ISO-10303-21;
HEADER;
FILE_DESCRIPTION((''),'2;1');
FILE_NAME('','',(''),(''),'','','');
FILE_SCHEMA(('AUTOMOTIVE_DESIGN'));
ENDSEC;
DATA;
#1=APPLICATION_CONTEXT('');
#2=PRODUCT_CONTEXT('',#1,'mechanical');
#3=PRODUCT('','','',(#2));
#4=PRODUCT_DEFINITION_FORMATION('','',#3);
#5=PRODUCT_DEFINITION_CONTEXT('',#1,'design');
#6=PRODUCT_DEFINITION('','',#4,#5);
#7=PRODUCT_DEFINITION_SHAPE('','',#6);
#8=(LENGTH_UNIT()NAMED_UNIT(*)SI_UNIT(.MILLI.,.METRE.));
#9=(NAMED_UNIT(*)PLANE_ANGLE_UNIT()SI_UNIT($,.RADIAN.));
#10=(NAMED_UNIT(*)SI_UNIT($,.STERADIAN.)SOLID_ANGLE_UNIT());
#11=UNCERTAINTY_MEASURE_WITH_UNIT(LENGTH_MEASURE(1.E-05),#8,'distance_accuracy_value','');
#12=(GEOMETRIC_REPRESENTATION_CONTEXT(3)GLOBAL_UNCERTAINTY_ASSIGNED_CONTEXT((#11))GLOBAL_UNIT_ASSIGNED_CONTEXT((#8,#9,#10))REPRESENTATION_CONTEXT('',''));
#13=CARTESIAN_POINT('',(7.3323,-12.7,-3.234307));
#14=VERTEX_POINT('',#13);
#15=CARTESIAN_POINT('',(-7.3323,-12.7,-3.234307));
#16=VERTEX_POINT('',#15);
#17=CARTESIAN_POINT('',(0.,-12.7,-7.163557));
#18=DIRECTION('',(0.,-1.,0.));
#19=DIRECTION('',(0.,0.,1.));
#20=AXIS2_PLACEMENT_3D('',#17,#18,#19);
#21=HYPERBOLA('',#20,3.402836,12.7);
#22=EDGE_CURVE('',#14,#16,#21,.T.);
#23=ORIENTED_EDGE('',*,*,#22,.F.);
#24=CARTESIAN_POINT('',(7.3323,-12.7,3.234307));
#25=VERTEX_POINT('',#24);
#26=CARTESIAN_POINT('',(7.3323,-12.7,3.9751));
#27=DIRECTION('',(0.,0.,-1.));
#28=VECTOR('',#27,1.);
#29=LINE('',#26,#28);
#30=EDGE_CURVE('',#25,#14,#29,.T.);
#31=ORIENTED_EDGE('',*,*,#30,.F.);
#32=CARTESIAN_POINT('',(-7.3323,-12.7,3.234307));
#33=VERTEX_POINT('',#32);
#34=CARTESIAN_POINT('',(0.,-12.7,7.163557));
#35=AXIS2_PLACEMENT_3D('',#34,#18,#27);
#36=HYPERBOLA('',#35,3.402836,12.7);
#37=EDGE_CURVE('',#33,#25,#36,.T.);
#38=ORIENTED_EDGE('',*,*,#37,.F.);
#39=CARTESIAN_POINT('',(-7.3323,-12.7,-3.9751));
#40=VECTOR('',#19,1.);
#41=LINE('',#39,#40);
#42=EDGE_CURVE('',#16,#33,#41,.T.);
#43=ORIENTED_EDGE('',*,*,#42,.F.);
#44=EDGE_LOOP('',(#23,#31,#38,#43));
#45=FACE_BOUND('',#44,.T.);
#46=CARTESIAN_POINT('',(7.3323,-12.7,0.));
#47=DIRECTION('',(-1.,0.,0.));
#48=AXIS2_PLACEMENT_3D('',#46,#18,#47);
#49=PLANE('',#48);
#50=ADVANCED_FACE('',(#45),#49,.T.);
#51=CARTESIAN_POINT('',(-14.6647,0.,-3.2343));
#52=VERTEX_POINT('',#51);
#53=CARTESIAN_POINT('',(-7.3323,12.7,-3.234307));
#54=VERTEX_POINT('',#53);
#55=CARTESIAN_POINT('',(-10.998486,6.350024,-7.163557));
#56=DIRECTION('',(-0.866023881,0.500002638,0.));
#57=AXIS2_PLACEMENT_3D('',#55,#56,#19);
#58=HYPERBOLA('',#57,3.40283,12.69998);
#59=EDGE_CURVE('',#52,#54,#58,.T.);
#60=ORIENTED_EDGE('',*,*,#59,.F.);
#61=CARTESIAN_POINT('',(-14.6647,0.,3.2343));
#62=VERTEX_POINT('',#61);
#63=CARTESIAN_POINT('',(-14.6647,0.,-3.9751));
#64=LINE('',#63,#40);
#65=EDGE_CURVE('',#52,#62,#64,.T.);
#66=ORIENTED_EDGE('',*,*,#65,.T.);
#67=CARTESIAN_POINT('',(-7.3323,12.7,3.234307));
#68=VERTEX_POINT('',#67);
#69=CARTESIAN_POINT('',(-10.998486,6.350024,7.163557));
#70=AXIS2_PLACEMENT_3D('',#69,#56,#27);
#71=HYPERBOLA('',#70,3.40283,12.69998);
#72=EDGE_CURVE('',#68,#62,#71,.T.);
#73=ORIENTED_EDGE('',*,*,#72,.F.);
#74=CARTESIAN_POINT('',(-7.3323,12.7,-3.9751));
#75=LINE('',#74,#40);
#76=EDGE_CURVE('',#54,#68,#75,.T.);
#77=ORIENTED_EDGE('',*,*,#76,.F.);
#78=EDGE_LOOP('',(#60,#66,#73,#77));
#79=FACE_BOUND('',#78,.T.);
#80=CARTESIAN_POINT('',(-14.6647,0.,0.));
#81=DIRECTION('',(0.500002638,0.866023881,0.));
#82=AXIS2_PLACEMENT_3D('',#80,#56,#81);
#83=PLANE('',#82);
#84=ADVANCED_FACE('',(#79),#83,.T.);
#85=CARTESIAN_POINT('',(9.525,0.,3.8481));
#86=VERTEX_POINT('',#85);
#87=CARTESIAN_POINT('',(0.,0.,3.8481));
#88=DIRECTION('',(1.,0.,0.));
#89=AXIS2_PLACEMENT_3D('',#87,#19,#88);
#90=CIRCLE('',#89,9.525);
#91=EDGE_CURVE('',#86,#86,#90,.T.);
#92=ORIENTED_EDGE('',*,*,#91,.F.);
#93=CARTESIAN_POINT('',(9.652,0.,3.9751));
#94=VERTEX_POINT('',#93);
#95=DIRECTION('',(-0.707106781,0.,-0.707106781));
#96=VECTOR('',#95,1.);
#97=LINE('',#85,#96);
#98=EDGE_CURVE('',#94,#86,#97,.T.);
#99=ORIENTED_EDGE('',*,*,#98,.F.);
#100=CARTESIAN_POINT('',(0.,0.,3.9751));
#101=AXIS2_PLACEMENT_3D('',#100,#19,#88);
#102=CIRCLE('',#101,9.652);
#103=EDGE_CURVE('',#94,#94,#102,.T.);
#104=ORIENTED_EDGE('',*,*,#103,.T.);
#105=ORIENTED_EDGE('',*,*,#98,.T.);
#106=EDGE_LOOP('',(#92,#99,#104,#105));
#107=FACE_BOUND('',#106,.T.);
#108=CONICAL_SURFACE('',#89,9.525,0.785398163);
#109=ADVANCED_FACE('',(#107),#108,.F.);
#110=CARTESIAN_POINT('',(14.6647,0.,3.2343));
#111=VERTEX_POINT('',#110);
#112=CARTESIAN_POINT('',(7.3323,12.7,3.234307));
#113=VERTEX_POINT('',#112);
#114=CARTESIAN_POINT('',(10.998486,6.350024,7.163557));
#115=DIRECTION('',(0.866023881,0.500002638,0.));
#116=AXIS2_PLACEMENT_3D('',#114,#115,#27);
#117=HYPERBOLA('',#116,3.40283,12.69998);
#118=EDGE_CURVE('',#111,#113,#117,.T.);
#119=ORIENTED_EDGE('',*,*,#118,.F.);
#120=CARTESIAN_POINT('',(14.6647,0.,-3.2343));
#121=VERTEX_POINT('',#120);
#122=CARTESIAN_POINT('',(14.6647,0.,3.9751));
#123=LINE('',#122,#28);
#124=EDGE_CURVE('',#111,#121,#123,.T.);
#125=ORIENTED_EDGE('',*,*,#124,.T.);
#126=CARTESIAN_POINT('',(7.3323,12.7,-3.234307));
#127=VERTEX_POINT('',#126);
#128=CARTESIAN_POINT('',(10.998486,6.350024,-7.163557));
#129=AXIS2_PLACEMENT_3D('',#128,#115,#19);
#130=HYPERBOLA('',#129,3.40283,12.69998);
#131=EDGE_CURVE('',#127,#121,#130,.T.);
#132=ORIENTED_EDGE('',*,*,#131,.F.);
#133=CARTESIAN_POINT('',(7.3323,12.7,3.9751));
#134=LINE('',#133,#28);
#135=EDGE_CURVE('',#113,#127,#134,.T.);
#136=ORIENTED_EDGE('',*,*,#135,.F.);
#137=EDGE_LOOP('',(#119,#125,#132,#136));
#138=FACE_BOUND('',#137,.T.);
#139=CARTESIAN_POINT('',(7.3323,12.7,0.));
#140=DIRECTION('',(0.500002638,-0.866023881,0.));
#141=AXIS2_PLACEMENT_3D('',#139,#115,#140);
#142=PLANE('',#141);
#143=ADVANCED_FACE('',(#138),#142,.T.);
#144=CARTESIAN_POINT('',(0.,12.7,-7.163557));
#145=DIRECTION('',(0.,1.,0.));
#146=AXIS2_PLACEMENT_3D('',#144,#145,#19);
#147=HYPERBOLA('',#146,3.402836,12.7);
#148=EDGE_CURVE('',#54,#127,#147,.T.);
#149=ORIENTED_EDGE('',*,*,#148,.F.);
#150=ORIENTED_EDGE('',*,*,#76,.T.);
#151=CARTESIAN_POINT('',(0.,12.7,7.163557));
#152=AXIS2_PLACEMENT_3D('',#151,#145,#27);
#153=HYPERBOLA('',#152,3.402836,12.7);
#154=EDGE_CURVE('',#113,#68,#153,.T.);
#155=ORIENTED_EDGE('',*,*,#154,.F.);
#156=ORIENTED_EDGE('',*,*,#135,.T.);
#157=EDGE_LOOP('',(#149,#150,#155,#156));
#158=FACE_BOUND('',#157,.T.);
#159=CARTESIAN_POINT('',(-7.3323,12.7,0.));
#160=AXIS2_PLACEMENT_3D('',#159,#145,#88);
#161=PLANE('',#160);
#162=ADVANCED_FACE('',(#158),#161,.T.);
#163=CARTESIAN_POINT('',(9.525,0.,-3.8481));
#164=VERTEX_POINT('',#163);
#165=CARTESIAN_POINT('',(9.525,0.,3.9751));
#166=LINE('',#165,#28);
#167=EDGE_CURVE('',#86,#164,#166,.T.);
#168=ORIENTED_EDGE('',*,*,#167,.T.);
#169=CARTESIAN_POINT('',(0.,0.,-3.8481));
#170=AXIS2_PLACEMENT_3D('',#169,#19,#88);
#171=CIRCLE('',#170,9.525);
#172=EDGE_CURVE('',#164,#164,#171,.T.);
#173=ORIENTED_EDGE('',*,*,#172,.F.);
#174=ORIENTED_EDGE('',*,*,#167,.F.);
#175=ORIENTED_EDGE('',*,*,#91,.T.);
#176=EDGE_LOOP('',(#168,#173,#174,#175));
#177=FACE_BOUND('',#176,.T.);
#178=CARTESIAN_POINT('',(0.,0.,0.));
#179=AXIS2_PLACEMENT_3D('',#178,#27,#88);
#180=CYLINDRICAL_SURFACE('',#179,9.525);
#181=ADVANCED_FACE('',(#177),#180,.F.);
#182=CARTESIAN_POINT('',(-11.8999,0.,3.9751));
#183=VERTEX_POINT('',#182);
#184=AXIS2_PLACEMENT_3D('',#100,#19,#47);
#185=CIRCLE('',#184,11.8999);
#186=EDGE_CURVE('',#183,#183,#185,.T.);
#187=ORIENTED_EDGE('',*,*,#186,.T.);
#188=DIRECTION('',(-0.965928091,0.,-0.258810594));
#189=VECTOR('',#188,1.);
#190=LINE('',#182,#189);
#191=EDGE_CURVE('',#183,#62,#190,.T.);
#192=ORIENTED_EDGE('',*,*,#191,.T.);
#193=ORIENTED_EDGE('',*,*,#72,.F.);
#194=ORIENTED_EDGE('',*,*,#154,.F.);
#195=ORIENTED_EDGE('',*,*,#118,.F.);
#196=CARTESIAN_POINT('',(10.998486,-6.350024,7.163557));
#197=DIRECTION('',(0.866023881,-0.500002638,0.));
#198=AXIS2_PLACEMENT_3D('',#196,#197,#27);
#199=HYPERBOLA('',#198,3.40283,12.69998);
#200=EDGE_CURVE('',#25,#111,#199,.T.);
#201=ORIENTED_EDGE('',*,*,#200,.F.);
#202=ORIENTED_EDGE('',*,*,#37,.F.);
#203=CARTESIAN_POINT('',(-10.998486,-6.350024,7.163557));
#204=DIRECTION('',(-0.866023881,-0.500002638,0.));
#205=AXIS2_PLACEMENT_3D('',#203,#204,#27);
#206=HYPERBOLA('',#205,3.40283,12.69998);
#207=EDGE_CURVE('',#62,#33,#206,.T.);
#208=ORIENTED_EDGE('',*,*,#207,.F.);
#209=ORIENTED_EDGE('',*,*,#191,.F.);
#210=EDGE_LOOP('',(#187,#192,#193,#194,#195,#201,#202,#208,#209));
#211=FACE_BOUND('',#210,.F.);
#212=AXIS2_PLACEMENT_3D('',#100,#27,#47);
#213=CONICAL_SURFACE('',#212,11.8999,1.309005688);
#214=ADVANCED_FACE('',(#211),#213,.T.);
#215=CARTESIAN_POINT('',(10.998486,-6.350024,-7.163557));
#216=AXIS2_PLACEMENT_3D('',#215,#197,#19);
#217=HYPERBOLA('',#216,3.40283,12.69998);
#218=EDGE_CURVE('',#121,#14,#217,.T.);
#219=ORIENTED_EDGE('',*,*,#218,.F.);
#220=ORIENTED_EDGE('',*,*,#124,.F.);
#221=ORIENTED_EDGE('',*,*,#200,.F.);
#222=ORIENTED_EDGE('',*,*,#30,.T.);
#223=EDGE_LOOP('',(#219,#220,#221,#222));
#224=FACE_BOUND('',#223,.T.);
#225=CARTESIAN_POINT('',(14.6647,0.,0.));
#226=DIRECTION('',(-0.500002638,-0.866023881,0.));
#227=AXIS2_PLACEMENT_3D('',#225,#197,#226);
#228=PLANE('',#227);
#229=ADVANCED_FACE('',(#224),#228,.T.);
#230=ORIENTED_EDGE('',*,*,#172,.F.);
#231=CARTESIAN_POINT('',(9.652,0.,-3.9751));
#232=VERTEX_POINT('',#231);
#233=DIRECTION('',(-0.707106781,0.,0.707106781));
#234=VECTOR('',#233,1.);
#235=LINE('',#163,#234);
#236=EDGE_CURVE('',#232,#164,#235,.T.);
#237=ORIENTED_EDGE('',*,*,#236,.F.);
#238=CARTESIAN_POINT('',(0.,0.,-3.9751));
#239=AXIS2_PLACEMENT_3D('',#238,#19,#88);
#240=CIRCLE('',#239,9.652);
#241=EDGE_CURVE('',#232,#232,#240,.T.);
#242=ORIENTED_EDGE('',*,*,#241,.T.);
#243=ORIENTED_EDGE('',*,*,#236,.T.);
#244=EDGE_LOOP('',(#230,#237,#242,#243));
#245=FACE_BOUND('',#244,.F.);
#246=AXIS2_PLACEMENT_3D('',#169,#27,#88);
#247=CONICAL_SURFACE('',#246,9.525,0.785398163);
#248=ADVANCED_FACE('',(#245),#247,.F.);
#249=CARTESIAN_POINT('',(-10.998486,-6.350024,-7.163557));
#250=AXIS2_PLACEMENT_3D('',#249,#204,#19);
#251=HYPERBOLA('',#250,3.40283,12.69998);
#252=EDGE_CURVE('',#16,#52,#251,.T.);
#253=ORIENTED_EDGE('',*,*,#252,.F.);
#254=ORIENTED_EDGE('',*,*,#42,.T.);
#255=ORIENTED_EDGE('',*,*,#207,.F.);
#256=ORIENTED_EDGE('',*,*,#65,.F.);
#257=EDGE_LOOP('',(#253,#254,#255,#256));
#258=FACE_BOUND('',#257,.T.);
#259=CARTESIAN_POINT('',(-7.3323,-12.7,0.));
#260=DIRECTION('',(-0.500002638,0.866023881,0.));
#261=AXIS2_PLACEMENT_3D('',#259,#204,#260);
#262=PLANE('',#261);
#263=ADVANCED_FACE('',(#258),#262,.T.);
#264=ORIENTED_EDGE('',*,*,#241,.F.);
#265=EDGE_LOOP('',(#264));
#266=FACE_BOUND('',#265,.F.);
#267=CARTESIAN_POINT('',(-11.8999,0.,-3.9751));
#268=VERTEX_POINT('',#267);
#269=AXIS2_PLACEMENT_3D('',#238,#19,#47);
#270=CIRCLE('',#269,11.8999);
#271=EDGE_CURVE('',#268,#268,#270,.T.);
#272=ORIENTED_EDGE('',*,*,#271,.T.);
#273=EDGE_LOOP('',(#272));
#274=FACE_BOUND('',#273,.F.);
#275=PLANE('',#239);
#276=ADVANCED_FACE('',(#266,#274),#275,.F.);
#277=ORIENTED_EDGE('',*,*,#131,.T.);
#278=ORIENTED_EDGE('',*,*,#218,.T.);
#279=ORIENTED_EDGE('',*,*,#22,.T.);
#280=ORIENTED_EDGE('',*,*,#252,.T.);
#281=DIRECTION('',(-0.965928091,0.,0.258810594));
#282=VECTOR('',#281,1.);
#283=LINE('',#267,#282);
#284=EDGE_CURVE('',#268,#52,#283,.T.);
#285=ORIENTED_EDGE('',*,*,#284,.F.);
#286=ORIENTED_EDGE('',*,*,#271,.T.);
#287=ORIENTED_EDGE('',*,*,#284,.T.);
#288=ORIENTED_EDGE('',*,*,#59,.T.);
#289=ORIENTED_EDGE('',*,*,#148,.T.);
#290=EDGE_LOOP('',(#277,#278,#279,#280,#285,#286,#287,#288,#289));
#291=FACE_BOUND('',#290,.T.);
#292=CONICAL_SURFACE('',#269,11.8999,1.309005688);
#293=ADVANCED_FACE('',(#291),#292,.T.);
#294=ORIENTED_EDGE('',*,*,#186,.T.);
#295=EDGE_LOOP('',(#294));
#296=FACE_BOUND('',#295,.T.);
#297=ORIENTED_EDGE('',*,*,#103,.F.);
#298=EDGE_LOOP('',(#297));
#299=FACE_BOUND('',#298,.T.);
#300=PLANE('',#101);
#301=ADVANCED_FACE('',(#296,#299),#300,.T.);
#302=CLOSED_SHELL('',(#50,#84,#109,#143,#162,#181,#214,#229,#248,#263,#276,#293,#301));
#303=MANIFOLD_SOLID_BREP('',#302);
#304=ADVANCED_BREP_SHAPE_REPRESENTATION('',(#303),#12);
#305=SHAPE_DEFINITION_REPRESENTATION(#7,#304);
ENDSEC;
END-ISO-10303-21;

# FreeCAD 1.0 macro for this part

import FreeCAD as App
import Part
import Sketcher
from FreeCAD import Vector
Q = App.Units.Quantity


def edges_at(feature, points):
    """Names of the edges that pass closest to the given points."""
    edges = feature.Shape.Edges
    near = lambda p: min(range(len(edges)), key=lambda i: edges[i].distToShape(Part.Vertex(*p))[0])
    return sorted({f"Edge{near(p) + 1}" for p in points})


def add_polygon(sketch, points):
    """Adds a closed chain of lines whose ends are joined by coincident constraints."""
    first, n = sketch.GeometryCount, len(points)
    for a, b in zip(points, points[1:] + points[:1]):
        sketch.addGeometry(Part.LineSegment(App.Vector(*a, 0), App.Vector(*b, 0)), False)
    for i in range(n):
        sketch.addConstraint(Sketcher.Constraint("Coincident", first + i, 2, first + (i + 1) % n, 1))

doc = App.newDocument("Part")
body = doc.addObject("PartDesign::Body", "Body")

# Sketch on XY plane
sketch1 = body.newObject("Sketcher::SketchObject", "Sketch")
sketch1.AttachmentSupport = (doc.getObject("XY_Plane"), [""])
sketch1.MapMode = "FlatFace"
add_polygon(sketch1, [(7.3323, 12.7), (-7.3323, 12.7), (-14.6647, 0), (-7.3323, -12.7), (7.3323, -12.7), (14.6647, 0)])  # lines 0-5
sketch1.addGeometry(Part.Circle(Vector(0, 0, 0), Vector(0, 0, 1), 9.525), False)  # 6
sketch1.addConstraint(Sketcher.Constraint("Horizontal", 0))
sketch1.addConstraint(Sketcher.Constraint("Horizontal", 3))
sketch1.addConstraint(Sketcher.Constraint("Coincident", 6, 3, -1, 1))
sketch1.addConstraint(Sketcher.Constraint("Symmetric", 0, 2, 3, 2, -1, 1))
sketch1.addConstraint(Sketcher.Constraint("Symmetric", 1, 2, 4, 2, -1, 1))
sketch1.addConstraint(Sketcher.Constraint("PointOnObject", 1, 2, -1))
sketch1.addConstraint(Sketcher.Constraint("Parallel", 2, 5))
sketch1.addConstraint(Sketcher.Constraint("Vertical", 0, 2, 2, 2))
sketch1.addConstraint(Sketcher.Constraint("Diameter", 6, Q("0.75 in")))
sketch1.addConstraint(Sketcher.Constraint("DistanceY", 2, 2, 0, 2, Q("1 in")))
sketch1.addConstraint(Sketcher.Constraint("Angle", 1, Q("-120.0002 deg")))
sketch1.addConstraint(Sketcher.Constraint("DistanceX", 0, 2, 0, 1, Q("14.6646 mm")))
pad1 = body.newObject("PartDesign::Pad", "Pad")
pad1.Profile = sketch1
pad1.Length = Q("0.313 in")
pad1.Midplane = True
doc.recompute()

chamfer = body.newObject("PartDesign::Chamfer", "Chamfer")
chamfer.Base = (pad1, edges_at(pad1, [(-9.525, 0, 3.975), (-9.525, 0, -3.975)]))
chamfer.Size = Q("0.005 in")

# Sketch on XZ plane
sketch2 = body.newObject("Sketcher::SketchObject", "Sketch001")
sketch2.AttachmentSupport = (doc.getObject("XZ_Plane"), [""])
sketch2.MapMode = "FlatFace"
add_polygon(sketch2, [(-14.6647, 3.9751), (-11.8999, 3.9751), (-14.6647, 3.2343)])  # lines 0-2
add_polygon(sketch2, [(-14.6647, -3.2343), (-11.8999, -3.9751), (-14.6647, -3.9751)])  # lines 3-5
sketch2.addConstraint(Sketcher.Constraint("Horizontal", 0))
sketch2.addConstraint(Sketcher.Constraint("Vertical", 2))
sketch2.addConstraint(Sketcher.Constraint("Horizontal", 4))
sketch2.addConstraint(Sketcher.Constraint("Vertical", 5))
sketch2.addConstraint(Sketcher.Constraint("Symmetric", 0, 2, 3, 2, -1))
sketch2.addConstraint(Sketcher.Constraint("Symmetric", 1, 2, 5, 2, -1))
sketch2.addConstraint(Sketcher.Constraint("Angle", 3, Q("-14.9995 deg")))
sketch2.addConstraint(Sketcher.Constraint("DistanceX", 0, 2, -1, 1, Q("0.4685 in")))
sketch2.addConstraint(Sketcher.Constraint("DistanceY", 3, 2, 0, 2, Q("0.313 in")))
sketch2.addConstraint(Sketcher.Constraint("Distance", 1, Q("0.1127 in")))
groove = body.newObject("PartDesign::Groove", "Groove")
groove.Profile = sketch2
groove.ReferenceAxis = (sketch2, ["V_Axis"])
groove.Angle = 360

doc.recompute()
